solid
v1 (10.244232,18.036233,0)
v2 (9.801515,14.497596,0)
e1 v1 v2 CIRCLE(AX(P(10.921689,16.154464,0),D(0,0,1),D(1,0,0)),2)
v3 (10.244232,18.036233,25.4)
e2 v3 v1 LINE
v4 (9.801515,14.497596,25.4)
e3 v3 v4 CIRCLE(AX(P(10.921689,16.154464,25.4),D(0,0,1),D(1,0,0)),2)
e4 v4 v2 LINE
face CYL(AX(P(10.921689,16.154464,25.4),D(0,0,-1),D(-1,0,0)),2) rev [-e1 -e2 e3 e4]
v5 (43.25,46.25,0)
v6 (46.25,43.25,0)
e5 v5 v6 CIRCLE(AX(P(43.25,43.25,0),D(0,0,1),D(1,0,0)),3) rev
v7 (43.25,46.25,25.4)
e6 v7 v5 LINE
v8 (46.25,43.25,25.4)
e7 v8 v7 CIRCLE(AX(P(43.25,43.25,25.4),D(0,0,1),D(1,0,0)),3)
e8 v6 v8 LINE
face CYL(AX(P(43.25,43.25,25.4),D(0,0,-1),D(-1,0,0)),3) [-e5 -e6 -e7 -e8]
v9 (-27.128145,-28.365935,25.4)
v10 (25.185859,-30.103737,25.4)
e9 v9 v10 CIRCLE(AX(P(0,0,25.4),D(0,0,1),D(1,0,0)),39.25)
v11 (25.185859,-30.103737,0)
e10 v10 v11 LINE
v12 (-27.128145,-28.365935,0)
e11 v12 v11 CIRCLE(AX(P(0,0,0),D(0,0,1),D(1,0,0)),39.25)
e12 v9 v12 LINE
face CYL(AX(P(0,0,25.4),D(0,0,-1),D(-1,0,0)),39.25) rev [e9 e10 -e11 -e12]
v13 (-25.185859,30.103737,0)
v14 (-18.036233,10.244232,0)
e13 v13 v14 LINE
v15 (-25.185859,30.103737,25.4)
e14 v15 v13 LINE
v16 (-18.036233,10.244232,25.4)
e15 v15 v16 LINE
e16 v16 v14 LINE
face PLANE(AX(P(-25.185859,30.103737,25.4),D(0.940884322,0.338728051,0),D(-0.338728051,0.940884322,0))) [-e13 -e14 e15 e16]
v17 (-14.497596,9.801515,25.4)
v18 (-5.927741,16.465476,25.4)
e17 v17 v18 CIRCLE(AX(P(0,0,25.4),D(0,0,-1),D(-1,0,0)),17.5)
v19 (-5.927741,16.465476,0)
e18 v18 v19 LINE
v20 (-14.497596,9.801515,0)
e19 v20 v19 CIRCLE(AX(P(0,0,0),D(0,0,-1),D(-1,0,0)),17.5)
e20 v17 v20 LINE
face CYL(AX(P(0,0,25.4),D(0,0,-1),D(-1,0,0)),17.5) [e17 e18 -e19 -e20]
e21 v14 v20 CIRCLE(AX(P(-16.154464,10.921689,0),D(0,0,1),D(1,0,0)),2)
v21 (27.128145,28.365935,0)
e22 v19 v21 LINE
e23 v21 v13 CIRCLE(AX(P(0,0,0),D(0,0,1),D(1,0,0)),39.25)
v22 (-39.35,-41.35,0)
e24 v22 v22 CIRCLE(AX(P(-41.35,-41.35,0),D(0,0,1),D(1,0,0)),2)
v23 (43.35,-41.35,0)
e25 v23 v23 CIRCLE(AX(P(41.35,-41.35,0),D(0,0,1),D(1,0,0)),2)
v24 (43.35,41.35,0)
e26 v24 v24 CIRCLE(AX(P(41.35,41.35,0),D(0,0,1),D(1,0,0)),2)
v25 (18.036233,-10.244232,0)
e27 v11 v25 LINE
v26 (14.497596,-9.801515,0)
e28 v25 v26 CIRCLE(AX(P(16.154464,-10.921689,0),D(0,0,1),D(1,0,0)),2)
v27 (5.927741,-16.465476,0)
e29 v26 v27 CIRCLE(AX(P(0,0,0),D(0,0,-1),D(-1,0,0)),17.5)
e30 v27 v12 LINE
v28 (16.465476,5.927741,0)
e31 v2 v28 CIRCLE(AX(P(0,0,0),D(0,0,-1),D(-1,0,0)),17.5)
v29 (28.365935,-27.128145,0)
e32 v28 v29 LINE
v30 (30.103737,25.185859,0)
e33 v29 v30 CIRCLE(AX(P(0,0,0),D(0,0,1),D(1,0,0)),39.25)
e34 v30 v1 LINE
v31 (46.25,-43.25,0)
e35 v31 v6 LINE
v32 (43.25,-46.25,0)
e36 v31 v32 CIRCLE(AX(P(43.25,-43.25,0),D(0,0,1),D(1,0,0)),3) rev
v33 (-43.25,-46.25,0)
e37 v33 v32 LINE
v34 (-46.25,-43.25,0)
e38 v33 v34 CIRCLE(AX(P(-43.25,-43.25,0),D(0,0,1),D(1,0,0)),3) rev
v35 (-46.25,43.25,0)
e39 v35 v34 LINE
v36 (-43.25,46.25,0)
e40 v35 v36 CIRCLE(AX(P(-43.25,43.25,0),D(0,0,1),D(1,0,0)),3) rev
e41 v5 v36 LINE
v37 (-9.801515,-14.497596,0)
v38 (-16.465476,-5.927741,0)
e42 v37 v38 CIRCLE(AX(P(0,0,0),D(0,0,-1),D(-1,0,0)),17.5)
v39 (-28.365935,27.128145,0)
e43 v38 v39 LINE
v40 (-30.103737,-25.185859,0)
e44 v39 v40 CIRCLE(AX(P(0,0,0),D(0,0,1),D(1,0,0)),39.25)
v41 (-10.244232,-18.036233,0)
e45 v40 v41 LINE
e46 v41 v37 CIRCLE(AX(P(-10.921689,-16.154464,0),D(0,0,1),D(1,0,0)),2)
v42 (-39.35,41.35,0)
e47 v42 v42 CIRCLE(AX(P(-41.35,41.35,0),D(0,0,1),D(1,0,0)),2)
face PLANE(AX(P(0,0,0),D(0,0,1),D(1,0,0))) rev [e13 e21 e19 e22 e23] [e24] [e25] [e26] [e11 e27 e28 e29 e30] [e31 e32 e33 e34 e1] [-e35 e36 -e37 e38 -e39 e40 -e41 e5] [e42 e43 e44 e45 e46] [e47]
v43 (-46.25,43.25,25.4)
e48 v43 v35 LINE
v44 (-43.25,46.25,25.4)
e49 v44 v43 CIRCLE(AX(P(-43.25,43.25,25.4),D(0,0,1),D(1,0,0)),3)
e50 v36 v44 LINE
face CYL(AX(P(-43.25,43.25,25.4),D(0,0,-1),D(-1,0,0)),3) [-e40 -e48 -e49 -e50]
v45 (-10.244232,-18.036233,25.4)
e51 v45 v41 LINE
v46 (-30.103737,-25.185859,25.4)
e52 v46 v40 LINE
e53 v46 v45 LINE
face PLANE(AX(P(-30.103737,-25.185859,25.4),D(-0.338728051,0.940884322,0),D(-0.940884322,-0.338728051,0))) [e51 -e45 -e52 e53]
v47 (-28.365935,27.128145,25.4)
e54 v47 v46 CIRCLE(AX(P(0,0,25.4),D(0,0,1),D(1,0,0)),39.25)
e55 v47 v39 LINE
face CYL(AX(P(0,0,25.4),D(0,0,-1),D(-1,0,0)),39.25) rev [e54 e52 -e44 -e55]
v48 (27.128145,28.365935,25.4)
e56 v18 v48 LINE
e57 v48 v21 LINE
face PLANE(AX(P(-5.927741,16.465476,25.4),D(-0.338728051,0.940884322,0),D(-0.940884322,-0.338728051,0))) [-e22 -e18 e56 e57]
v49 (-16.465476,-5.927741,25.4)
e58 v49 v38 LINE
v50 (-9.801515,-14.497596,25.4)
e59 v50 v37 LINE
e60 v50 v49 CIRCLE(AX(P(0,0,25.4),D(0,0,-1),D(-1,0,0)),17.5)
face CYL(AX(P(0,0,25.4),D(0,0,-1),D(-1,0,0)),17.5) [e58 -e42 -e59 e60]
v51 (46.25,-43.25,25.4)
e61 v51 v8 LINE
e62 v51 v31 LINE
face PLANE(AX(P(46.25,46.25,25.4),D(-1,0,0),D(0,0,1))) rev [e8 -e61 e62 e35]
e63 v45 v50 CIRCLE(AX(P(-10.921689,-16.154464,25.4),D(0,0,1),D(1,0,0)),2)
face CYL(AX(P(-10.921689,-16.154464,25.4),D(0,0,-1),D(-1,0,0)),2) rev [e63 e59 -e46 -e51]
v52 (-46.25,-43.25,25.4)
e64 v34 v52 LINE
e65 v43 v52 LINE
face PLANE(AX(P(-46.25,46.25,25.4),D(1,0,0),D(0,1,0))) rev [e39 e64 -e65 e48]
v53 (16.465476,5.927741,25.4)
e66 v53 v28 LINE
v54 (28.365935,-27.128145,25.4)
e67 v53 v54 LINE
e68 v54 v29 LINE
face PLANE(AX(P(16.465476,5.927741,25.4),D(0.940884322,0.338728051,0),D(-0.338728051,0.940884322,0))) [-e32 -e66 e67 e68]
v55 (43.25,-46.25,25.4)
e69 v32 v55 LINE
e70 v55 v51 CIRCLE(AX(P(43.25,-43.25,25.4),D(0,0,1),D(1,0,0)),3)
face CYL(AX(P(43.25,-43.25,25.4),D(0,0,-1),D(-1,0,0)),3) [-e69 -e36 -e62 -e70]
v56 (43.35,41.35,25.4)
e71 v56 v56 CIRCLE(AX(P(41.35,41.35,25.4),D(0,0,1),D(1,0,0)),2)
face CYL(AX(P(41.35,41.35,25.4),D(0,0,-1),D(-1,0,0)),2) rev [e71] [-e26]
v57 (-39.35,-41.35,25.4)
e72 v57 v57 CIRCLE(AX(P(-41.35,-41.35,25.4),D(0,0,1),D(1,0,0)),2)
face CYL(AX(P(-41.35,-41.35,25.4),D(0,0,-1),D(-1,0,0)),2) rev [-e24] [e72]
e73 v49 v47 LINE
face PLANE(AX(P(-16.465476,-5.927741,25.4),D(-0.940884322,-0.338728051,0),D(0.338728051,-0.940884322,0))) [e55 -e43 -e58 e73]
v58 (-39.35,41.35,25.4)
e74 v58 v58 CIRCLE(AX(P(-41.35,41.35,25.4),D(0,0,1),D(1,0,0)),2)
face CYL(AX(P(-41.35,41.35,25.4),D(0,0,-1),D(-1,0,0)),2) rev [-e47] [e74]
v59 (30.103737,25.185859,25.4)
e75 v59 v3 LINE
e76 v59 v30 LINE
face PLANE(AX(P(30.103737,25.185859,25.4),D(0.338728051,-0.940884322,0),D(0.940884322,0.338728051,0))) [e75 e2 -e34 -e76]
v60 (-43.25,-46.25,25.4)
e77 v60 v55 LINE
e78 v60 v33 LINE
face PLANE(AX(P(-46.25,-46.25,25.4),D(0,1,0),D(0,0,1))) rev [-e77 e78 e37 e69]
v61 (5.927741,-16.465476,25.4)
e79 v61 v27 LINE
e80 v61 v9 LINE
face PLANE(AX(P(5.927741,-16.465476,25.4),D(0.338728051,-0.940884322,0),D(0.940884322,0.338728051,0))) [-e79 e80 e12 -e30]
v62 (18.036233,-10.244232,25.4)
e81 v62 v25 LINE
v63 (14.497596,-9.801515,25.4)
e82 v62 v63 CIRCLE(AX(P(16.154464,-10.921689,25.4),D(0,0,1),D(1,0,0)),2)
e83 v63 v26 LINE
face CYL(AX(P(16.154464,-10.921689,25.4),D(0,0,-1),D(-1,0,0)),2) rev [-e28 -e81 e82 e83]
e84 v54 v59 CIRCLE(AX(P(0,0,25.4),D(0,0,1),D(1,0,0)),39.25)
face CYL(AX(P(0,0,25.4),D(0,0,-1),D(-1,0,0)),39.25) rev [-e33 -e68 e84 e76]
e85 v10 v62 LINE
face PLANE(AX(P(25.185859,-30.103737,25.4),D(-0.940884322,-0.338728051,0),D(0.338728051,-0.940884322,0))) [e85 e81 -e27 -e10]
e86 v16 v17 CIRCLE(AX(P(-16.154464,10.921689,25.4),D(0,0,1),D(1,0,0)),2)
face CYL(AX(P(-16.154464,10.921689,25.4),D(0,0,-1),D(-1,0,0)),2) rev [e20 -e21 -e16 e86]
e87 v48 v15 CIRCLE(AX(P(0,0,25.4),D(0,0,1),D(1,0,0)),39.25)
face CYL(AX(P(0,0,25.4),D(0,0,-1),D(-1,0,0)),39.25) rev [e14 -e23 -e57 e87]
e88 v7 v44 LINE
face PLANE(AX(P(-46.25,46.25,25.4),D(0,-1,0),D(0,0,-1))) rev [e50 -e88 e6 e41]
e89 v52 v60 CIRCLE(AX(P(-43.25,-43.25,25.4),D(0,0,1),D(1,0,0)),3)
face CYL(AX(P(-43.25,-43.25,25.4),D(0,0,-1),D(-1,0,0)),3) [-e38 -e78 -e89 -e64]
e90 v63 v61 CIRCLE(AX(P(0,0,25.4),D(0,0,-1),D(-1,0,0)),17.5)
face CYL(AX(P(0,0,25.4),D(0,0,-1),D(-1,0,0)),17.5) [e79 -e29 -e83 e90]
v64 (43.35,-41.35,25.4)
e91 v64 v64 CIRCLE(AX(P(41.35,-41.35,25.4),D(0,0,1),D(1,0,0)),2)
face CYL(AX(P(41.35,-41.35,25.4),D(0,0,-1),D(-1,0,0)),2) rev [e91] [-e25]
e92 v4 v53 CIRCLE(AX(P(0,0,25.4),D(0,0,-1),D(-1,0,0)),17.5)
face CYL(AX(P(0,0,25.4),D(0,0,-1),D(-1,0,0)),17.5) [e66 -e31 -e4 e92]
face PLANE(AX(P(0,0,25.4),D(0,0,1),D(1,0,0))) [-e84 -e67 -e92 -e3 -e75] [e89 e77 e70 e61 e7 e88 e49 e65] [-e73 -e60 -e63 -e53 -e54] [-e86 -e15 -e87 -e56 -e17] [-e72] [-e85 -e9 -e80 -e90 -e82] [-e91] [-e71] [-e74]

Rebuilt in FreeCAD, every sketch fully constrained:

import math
import FreeCAD as App
import Part
import Sketcher

V = App.Vector
Q = App.Units.Quantity


def edges_at(feature, points):
    """Names of the edges that pass closest to the given points."""
    edges = feature.Shape.Edges
    near = lambda p: min(range(len(edges)), key=lambda i: edges[i].distToShape(Part.Vertex(*p))[0])
    return sorted({f"Edge{near(p) + 1}" for p in points})


def add_polygon(sketch, points):
    """Adds a closed chain of lines whose ends are joined by coincident constraints."""
    first, n = sketch.GeometryCount, len(points)
    for a, b in zip(points, points[1:] + points[:1]):
        sketch.addGeometry(Part.LineSegment(App.Vector(*a, 0), App.Vector(*b, 0)), False)
    for i in range(n):
        sketch.addConstraint(Sketcher.Constraint("Coincident", first + i, 2, first + (i + 1) % n, 1))

doc = App.newDocument("Part")
params = doc.addObject("Spreadsheet::Sheet", "Params")
for row, (alias, value) in enumerate([
    ("sketch1_diameter", "4 mm"),
    ("sketch1_radius", "17.5 mm"),
    ("sketch1_radius2", "39.25 mm"),
    ("sketch1_width", "92.5 mm"),
    ("pad1_length", "25.4 mm"),
    ("fillet_radius", "3 mm"),
], start=1):
    params.set(f"A{row}", alias)
    params.set(f"B{row}", "=" + value)
    params.setAlias(f"B{row}", alias)

body = doc.addObject("PartDesign::Body", "Body")

# Sketch on XY plane
sketch1 = body.newObject("Sketcher::SketchObject", "Sketch")
sketch1.AttachmentSupport = (doc.getObject("XY_Plane"), [""])
sketch1.MapMode = "FlatFace"
add_polygon(sketch1, [(-46.2, 46.2), (-46.2, -46.2), (46.2, -46.2), (46.2, 46.2)])  # lines 0-3
sketch1.addGeometry(Part.Circle(V(-41.4, -41.4, 0), V(0, 0, 1), 2), False)  # 4
sketch1.addGeometry(Part.LineSegment(V(-27.1, -28.4, 0), V(5.9, -16.5, 0)), False)  # 5
sketch1.addGeometry(Part.ArcOfCircle(Part.Circle(V(0, 0, 0), V(0, 0, 1), 17.5), math.radians(-70), math.radians(-34)), False)  # 6
sketch1.addGeometry(Part.ArcOfCircle(Part.Circle(V(16.2, -10.9, 0), V(0, 0, 1), 2), math.radians(20), math.radians(146)), False)  # 7
sketch1.addGeometry(Part.LineSegment(V(18, -10.2, 0), V(25.2, -30.1, 0)), False)  # 8
sketch1.addGeometry(Part.ArcOfCircle(Part.Circle(V(0, 0, 0), V(0, 0, 1), 39.2), math.radians(-134), math.radians(-50)), False)  # 9
sketch1.addGeometry(Part.Circle(V(41.4, -41.4, 0), V(0, 0, 1), 2), False)  # 10
sketch1.addGeometry(Part.LineSegment(V(10.2, 18, 0), V(30.1, 25.2, 0)), False)  # 11
sketch1.addGeometry(Part.ArcOfCircle(Part.Circle(V(0, 0, 0), V(0, 0, 1), 39.2), math.radians(-44), math.radians(40)), False)  # 12
sketch1.addGeometry(Part.LineSegment(V(28.4, -27.1, 0), V(16.5, 5.9, 0)), False)  # 13
sketch1.addGeometry(Part.ArcOfCircle(Part.Circle(V(0, 0, 0), V(0, 0, 1), 17.5), math.radians(20), math.radians(56)), False)  # 14
sketch1.addGeometry(Part.ArcOfCircle(Part.Circle(V(10.9, 16.2, 0), V(0, 0, 1), 2), math.radians(110), math.radians(236)), False)  # 15
sketch1.addGeometry(Part.LineSegment(V(-28.4, 27.1, 0), V(-16.5, -5.9, 0)), False)  # 16
sketch1.addGeometry(Part.ArcOfCircle(Part.Circle(V(0, 0, 0), V(0, 0, 1), 17.5), math.radians(-160), math.radians(-124)), False)  # 17
sketch1.addGeometry(Part.ArcOfCircle(Part.Circle(V(-10.9, -16.2, 0), V(0, 0, 1), 2), math.radians(-70), math.radians(56)), False)  # 18
sketch1.addGeometry(Part.LineSegment(V(-10.2, -18, 0), V(-30.1, -25.2, 0)), False)  # 19
sketch1.addGeometry(Part.ArcOfCircle(Part.Circle(V(0, 0, 0), V(0, 0, 1), 39.2), math.radians(136), math.radians(220)), False)  # 20
sketch1.addGeometry(Part.Circle(V(-41.4, 41.4, 0), V(0, 0, 1), 2), False)  # 21
sketch1.addGeometry(Part.LineSegment(V(27.1, 28.4, 0), V(-5.9, 16.5, 0)), False)  # 22
sketch1.addGeometry(Part.ArcOfCircle(Part.Circle(V(0, 0, 0), V(0, 0, 1), 17.5), math.radians(110), math.radians(146)), False)  # 23
sketch1.addGeometry(Part.ArcOfCircle(Part.Circle(V(-16.2, 10.9, 0), V(0, 0, 1), 2), math.radians(-160), math.radians(-34)), False)  # 24
sketch1.addGeometry(Part.LineSegment(V(-18, 10.2, 0), V(-25.2, 30.1, 0)), False)  # 25
sketch1.addGeometry(Part.ArcOfCircle(Part.Circle(V(0, 0, 0), V(0, 0, 1), 39.2), math.radians(46), math.radians(130)), False)  # 26
sketch1.addGeometry(Part.Circle(V(41.4, 41.4, 0), V(0, 0, 1), 2), False)  # 27
sketch1.addConstraint([
    Sketcher.Constraint("Tangent", 5, 2, 6, 1),
    Sketcher.Constraint("Tangent", 6, 2, 7, 2),
    Sketcher.Constraint("Tangent", 7, 1, 8, 1),
    Sketcher.Constraint("Coincident", 8, 2, 9, 2),
    Sketcher.Constraint("Coincident", 9, 1, 5, 1),
    Sketcher.Constraint("Coincident", 11, 2, 12, 2),
    Sketcher.Constraint("Coincident", 12, 1, 13, 1),
    Sketcher.Constraint("Tangent", 13, 2, 14, 1),
    Sketcher.Constraint("Tangent", 14, 2, 15, 2),
    Sketcher.Constraint("Tangent", 15, 1, 11, 1),
    Sketcher.Constraint("Tangent", 16, 2, 17, 1),
    Sketcher.Constraint("Tangent", 17, 2, 18, 2),
    Sketcher.Constraint("Tangent", 18, 1, 19, 1),
    Sketcher.Constraint("Coincident", 19, 2, 20, 2),
    Sketcher.Constraint("Coincident", 20, 1, 16, 1),
    Sketcher.Constraint("Tangent", 22, 2, 23, 1),
    Sketcher.Constraint("Tangent", 23, 2, 24, 2),
    Sketcher.Constraint("Tangent", 24, 1, 25, 1),
    Sketcher.Constraint("Coincident", 25, 2, 26, 2),
    Sketcher.Constraint("Coincident", 26, 1, 22, 1),
    Sketcher.Constraint("Vertical", 0),
    Sketcher.Constraint("Horizontal", 1),
    Sketcher.Constraint("Vertical", 2),
    Sketcher.Constraint("Horizontal", 3),
    Sketcher.Constraint("Coincident", 6, 3, -1, 1),
    Sketcher.Constraint("Coincident", 9, 3, -1, 1),
    Sketcher.Constraint("Coincident", 12, 3, -1, 1),
    Sketcher.Constraint("Coincident", 14, 3, -1, 1),
    Sketcher.Constraint("Coincident", 17, 3, -1, 1),
    Sketcher.Constraint("Coincident", 20, 3, -1, 1),
    Sketcher.Constraint("Coincident", 23, 3, -1, 1),
    Sketcher.Constraint("Coincident", 26, 3, -1, 1),
    Sketcher.Constraint("Equal", 4, 7),
    Sketcher.Constraint("Equal", 7, 10),
    Sketcher.Constraint("Equal", 9, 12),
    Sketcher.Constraint("Equal", 6, 14),
    Sketcher.Constraint("Equal", 10, 15),
    Sketcher.Constraint("Equal", 14, 17),
    Sketcher.Constraint("Equal", 15, 18),
    Sketcher.Constraint("Equal", 12, 20),
    Sketcher.Constraint("Equal", 18, 21),
    Sketcher.Constraint("Equal", 17, 23),
    Sketcher.Constraint("Equal", 21, 24),
    Sketcher.Constraint("Equal", 20, 26),
    Sketcher.Constraint("Equal", 24, 27),
    Sketcher.Constraint("Symmetric", 10, 3, 21, 3, -1, 1),
    Sketcher.Constraint("Symmetric", 4, 3, 27, 3, -1, 1),
    Sketcher.Constraint("Symmetric", 0, 2, 2, 2, -1, 1),
    Sketcher.Constraint("Symmetric", 15, 1, 18, 1, -1, 1),
    Sketcher.Constraint("Symmetric", 7, 1, 24, 1, -1, 1),
    Sketcher.Constraint("Symmetric", 4, 3, 10, 3, -2),
    Sketcher.Constraint("Perpendicular", 5, 8),
    Sketcher.Constraint("Perpendicular", 8, 11),
    Sketcher.Constraint("Perpendicular", 11, 13),
    Sketcher.Constraint("Parallel", 13, 16),
    Sketcher.Constraint("Parallel", 19, 22),
    Sketcher.Constraint("Equal", 3, 0),
    Sketcher.Constraint("Equal", 8, 11),
    Sketcher.Constraint("Diameter", 4, Q("4 mm")),
    Sketcher.Constraint("Radius", 6, Q("17.5 mm")),
    Sketcher.Constraint("Radius", 9, Q("39.25 mm")),
    Sketcher.Constraint("DistanceX", 1, 1, 1, 2, Q("92.5 mm")),
    Sketcher.Constraint("DistanceX", 4, 3, 10, 3, Q("82.7 mm")),
    Sketcher.Constraint("DistanceY", 0, 2, 4, 3, Q("4.9 mm")),
    Sketcher.Constraint("DistanceX", 7, 1, 12, 1, Q("10.329702 mm")),
    Sketcher.Constraint("DistanceY", 7, 3, -1, 1, Q("10.921689 mm")),
])
sketch1.setExpression("Constraints[62]", "Params.sketch1_diameter")
sketch1.setExpression("Constraints[63]", "Params.sketch1_radius")
sketch1.setExpression("Constraints[64]", "Params.sketch1_radius2")
sketch1.setExpression("Constraints[65]", "Params.sketch1_width")
pad1 = body.newObject("PartDesign::Pad", "Pad")
pad1.Profile = sketch1
pad1.setExpression("Length", "Params.pad1_length")
doc.recompute()

fillet = body.newObject("PartDesign::Fillet", "Fillet")
fillet.Base = (pad1, edges_at(pad1, [
    (-46.25, 46.25, 12.7),
    (46.25, 46.25, 12.7),
    (46.25, -46.25, 12.7),
    (-46.25, -46.25, 12.7),
]))
fillet.setExpression("Radius", "Params.fillet_radius")

doc.recompute()
